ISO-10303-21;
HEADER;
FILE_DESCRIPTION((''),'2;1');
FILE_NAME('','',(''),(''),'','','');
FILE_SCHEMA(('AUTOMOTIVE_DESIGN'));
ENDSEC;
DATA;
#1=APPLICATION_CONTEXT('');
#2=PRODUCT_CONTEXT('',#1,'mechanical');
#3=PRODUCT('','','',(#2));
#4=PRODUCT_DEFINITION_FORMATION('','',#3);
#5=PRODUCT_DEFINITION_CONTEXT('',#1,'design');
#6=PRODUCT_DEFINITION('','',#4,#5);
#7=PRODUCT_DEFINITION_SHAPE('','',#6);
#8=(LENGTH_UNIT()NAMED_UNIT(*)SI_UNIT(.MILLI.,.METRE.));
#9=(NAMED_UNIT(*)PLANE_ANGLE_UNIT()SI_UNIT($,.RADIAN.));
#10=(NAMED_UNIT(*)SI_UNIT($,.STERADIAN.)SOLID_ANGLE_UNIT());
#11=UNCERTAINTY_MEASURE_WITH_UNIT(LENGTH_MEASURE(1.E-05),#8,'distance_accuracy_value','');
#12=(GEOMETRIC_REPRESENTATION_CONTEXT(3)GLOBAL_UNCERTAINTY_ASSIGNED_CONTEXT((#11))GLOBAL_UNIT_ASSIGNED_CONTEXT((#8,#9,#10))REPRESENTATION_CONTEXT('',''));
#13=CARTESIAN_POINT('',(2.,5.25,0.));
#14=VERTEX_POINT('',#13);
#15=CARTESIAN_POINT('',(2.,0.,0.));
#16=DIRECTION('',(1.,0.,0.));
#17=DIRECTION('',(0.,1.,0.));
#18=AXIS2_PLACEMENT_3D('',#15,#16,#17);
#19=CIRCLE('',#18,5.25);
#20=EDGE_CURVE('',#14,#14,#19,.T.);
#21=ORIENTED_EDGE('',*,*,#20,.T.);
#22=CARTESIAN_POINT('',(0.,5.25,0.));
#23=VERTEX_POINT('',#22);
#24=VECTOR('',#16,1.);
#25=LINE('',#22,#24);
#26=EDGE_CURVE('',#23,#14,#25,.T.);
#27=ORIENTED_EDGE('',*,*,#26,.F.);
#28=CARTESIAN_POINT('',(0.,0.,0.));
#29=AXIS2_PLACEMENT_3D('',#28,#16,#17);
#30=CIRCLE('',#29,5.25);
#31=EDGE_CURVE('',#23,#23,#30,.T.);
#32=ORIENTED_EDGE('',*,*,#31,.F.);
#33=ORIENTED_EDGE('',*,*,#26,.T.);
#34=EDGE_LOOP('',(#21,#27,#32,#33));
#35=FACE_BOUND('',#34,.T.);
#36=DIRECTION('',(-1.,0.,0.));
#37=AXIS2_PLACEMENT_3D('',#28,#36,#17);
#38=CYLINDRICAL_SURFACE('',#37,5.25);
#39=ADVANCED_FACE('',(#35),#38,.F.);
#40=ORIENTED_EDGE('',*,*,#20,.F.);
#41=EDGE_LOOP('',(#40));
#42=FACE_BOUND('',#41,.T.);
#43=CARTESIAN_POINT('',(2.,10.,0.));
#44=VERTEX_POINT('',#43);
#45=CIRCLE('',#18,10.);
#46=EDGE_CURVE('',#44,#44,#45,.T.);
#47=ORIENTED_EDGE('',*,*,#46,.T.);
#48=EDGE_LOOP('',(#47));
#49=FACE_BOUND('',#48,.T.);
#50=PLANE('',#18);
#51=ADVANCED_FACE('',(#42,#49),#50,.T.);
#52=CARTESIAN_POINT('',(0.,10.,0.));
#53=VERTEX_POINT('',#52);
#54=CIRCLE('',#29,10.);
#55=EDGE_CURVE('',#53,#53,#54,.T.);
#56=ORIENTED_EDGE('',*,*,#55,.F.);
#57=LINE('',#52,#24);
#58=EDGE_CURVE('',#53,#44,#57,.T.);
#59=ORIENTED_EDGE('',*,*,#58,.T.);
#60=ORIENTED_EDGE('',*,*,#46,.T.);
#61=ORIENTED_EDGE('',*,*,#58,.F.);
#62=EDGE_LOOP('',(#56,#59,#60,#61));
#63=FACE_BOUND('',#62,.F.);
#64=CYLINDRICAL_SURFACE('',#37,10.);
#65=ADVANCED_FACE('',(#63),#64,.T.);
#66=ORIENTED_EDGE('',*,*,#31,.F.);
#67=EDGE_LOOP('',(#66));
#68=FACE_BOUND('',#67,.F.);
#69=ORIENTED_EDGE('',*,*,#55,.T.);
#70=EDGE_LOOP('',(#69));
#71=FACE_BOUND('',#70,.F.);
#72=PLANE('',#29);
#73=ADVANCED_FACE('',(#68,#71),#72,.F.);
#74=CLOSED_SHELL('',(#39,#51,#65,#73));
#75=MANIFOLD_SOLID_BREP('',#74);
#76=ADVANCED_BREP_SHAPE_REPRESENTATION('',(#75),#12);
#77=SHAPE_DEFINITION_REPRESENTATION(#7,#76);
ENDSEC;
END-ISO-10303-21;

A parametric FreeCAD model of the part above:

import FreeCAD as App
import Part
import Sketcher
Q = App.Units.Quantity

doc = App.newDocument("Part")
body = doc.addObject("PartDesign::Body", "Body")

# Sketch on YZ plane
sketch1 = body.newObject("Sketcher::SketchObject", "Sketch")
sketch1.AttachmentSupport = (doc.getObject("YZ_Plane"), [""])
sketch1.MapMode = "FlatFace"
sketch1.addGeometry(Part.Circle(App.Vector(0, 0, 0), App.Vector(0, 0, 1), 10), False)
sketch1.addGeometry(Part.Circle(App.Vector(0, 0, 0), App.Vector(0, 0, 1), 5), False)
sketch1.addConstraint(Sketcher.Constraint("Coincident", 0, 3, -1, 1))
sketch1.addConstraint(Sketcher.Constraint("Coincident", 1, 3, -1, 1))
sketch1.addConstraint(Sketcher.Constraint("Diameter", 0, Q("20 mm")))
sketch1.addConstraint(Sketcher.Constraint("Diameter", 1, Q("10.5 mm")))
pad1 = body.newObject("PartDesign::Pad", "Pad")
pad1.Profile = sketch1
pad1.Length = 2

doc.recompute()
